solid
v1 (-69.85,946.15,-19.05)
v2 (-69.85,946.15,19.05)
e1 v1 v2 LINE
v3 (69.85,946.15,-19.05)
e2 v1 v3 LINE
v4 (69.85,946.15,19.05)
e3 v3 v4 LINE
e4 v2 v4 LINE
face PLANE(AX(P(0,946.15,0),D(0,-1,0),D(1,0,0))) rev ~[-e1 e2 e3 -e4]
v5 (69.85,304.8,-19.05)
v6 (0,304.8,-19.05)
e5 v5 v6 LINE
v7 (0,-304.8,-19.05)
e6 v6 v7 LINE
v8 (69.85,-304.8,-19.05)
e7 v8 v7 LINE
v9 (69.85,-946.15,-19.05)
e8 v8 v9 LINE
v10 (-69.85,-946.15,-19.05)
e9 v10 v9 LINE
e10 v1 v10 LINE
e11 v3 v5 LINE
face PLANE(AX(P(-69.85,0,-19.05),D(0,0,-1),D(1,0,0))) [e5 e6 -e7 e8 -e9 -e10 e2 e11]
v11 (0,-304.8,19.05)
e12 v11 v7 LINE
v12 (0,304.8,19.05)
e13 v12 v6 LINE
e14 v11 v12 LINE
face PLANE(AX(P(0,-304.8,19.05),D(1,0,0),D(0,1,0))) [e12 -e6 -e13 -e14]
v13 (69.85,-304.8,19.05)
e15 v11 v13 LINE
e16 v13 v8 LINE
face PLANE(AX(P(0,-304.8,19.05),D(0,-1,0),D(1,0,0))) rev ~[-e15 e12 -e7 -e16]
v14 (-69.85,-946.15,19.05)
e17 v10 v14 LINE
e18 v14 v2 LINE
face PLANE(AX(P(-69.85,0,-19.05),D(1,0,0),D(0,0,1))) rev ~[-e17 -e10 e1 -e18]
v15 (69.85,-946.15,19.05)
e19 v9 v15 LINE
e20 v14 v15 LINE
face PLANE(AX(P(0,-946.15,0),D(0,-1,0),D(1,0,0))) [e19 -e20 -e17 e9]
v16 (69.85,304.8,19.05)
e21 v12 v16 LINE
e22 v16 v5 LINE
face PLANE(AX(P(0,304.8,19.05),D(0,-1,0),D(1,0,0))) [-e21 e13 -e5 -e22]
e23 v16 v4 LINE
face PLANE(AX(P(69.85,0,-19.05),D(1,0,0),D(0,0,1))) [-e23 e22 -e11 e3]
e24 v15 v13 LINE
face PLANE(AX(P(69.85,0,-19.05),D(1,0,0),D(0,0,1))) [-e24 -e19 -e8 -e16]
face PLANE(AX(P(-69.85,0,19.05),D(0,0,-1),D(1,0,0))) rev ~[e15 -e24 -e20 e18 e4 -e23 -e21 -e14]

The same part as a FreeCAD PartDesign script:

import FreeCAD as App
import Part
import Sketcher
Q = App.Units.Quantity

doc = App.newDocument("Part")
body = doc.addObject("PartDesign::Body", "Body")

# Sketch on XZ plane
sketch1 = doc.addObject("Sketcher::SketchObject", "Sketch")
body.addObject(sketch1)
sketch1.AttachmentSupport = (doc.XZ_Plane, [""])
sketch1.MapMode = "FlatFace"
sketch1.addGeometry(Part.LineSegment(App.Vector(-70, 19, 0), App.Vector(-70, -19, 0)), False)
sketch1.addGeometry(Part.LineSegment(App.Vector(-70, -19, 0), App.Vector(70, -19, 0)), False)
sketch1.addGeometry(Part.LineSegment(App.Vector(70, -19, 0), App.Vector(70, 19, 0)), False)
sketch1.addGeometry(Part.LineSegment(App.Vector(70, 19, 0), App.Vector(-70, 19, 0)), False)
sketch1.addConstraint(Sketcher.Constraint("Coincident", 0, 2, 1, 1))
sketch1.addConstraint(Sketcher.Constraint("Coincident", 1, 2, 2, 1))
sketch1.addConstraint(Sketcher.Constraint("Coincident", 2, 2, 3, 1))
sketch1.addConstraint(Sketcher.Constraint("Coincident", 3, 2, 0, 1))
sketch1.addConstraint(Sketcher.Constraint("Vertical", 0))
sketch1.addConstraint(Sketcher.Constraint("Horizontal", 1))
sketch1.addConstraint(Sketcher.Constraint("Vertical", 2))
sketch1.addConstraint(Sketcher.Constraint("Horizontal", 3))
sketch1.addConstraint(Sketcher.Constraint("Symmetric", 0, 2, 2, 2, -1, 1))
sketch1.addConstraint(Sketcher.Constraint("DistanceX", 1, 1, 1, 2, Q("5.5 in")))
sketch1.addConstraint(Sketcher.Constraint("DistanceY", 0, 2, 0, 1, Q("1.5 in")))
pad1 = doc.addObject("PartDesign::Pad", "Pad")
body.addObject(pad1)
pad1.Profile = sketch1
pad1.Length = Q("74.5 in")
pad1.Midplane = True

# Sketch on XY plane
sketch2 = doc.addObject("Sketcher::SketchObject", "Sketch001")
body.addObject(sketch2)
sketch2.AttachmentSupport = (doc.XY_Plane, [""])
sketch2.MapMode = "FlatFace"
sketch2.AttachmentOffset = App.Placement(App.Vector(0, 0, 0.75 * 25.4), App.Rotation())
sketch2.addGeometry(Part.LineSegment(App.Vector(0, 305, 0), App.Vector(0, -305, 0)), False)
sketch2.addGeometry(Part.LineSegment(App.Vector(0, -305, 0), App.Vector(140, -305, 0)), False)
sketch2.addGeometry(Part.LineSegment(App.Vector(140, -305, 0), App.Vector(140, 305, 0)), False)
sketch2.addGeometry(Part.LineSegment(App.Vector(140, 305, 0), App.Vector(0, 305, 0)), False)
sketch2.addConstraint(Sketcher.Constraint("Coincident", 0, 2, 1, 1))
sketch2.addConstraint(Sketcher.Constraint("Coincident", 1, 2, 2, 1))
sketch2.addConstraint(Sketcher.Constraint("Coincident", 2, 2, 3, 1))
sketch2.addConstraint(Sketcher.Constraint("Coincident", 3, 2, 0, 1))
sketch2.addConstraint(Sketcher.Constraint("Vertical", 0))
sketch2.addConstraint(Sketcher.Constraint("Horizontal", 1))
sketch2.addConstraint(Sketcher.Constraint("Vertical", 2))
sketch2.addConstraint(Sketcher.Constraint("Horizontal", 3))
sketch2.addConstraint(Sketcher.Constraint("Symmetric", 0, 2, 3, 2, -1, 1))
sketch2.addConstraint(Sketcher.Constraint("DistanceY", 0, 2, 0, 1, Q("24 in")))
sketch2.addConstraint(Sketcher.Constraint("DistanceX", 1, 1, 1, 2, Q("5.5 in")))
pocket1 = doc.addObject("PartDesign::Pocket", "Pocket")
body.addObject(pocket1)
pocket1.Profile = sketch2
pocket1.Type = "ThroughAll"

doc.recompute()
